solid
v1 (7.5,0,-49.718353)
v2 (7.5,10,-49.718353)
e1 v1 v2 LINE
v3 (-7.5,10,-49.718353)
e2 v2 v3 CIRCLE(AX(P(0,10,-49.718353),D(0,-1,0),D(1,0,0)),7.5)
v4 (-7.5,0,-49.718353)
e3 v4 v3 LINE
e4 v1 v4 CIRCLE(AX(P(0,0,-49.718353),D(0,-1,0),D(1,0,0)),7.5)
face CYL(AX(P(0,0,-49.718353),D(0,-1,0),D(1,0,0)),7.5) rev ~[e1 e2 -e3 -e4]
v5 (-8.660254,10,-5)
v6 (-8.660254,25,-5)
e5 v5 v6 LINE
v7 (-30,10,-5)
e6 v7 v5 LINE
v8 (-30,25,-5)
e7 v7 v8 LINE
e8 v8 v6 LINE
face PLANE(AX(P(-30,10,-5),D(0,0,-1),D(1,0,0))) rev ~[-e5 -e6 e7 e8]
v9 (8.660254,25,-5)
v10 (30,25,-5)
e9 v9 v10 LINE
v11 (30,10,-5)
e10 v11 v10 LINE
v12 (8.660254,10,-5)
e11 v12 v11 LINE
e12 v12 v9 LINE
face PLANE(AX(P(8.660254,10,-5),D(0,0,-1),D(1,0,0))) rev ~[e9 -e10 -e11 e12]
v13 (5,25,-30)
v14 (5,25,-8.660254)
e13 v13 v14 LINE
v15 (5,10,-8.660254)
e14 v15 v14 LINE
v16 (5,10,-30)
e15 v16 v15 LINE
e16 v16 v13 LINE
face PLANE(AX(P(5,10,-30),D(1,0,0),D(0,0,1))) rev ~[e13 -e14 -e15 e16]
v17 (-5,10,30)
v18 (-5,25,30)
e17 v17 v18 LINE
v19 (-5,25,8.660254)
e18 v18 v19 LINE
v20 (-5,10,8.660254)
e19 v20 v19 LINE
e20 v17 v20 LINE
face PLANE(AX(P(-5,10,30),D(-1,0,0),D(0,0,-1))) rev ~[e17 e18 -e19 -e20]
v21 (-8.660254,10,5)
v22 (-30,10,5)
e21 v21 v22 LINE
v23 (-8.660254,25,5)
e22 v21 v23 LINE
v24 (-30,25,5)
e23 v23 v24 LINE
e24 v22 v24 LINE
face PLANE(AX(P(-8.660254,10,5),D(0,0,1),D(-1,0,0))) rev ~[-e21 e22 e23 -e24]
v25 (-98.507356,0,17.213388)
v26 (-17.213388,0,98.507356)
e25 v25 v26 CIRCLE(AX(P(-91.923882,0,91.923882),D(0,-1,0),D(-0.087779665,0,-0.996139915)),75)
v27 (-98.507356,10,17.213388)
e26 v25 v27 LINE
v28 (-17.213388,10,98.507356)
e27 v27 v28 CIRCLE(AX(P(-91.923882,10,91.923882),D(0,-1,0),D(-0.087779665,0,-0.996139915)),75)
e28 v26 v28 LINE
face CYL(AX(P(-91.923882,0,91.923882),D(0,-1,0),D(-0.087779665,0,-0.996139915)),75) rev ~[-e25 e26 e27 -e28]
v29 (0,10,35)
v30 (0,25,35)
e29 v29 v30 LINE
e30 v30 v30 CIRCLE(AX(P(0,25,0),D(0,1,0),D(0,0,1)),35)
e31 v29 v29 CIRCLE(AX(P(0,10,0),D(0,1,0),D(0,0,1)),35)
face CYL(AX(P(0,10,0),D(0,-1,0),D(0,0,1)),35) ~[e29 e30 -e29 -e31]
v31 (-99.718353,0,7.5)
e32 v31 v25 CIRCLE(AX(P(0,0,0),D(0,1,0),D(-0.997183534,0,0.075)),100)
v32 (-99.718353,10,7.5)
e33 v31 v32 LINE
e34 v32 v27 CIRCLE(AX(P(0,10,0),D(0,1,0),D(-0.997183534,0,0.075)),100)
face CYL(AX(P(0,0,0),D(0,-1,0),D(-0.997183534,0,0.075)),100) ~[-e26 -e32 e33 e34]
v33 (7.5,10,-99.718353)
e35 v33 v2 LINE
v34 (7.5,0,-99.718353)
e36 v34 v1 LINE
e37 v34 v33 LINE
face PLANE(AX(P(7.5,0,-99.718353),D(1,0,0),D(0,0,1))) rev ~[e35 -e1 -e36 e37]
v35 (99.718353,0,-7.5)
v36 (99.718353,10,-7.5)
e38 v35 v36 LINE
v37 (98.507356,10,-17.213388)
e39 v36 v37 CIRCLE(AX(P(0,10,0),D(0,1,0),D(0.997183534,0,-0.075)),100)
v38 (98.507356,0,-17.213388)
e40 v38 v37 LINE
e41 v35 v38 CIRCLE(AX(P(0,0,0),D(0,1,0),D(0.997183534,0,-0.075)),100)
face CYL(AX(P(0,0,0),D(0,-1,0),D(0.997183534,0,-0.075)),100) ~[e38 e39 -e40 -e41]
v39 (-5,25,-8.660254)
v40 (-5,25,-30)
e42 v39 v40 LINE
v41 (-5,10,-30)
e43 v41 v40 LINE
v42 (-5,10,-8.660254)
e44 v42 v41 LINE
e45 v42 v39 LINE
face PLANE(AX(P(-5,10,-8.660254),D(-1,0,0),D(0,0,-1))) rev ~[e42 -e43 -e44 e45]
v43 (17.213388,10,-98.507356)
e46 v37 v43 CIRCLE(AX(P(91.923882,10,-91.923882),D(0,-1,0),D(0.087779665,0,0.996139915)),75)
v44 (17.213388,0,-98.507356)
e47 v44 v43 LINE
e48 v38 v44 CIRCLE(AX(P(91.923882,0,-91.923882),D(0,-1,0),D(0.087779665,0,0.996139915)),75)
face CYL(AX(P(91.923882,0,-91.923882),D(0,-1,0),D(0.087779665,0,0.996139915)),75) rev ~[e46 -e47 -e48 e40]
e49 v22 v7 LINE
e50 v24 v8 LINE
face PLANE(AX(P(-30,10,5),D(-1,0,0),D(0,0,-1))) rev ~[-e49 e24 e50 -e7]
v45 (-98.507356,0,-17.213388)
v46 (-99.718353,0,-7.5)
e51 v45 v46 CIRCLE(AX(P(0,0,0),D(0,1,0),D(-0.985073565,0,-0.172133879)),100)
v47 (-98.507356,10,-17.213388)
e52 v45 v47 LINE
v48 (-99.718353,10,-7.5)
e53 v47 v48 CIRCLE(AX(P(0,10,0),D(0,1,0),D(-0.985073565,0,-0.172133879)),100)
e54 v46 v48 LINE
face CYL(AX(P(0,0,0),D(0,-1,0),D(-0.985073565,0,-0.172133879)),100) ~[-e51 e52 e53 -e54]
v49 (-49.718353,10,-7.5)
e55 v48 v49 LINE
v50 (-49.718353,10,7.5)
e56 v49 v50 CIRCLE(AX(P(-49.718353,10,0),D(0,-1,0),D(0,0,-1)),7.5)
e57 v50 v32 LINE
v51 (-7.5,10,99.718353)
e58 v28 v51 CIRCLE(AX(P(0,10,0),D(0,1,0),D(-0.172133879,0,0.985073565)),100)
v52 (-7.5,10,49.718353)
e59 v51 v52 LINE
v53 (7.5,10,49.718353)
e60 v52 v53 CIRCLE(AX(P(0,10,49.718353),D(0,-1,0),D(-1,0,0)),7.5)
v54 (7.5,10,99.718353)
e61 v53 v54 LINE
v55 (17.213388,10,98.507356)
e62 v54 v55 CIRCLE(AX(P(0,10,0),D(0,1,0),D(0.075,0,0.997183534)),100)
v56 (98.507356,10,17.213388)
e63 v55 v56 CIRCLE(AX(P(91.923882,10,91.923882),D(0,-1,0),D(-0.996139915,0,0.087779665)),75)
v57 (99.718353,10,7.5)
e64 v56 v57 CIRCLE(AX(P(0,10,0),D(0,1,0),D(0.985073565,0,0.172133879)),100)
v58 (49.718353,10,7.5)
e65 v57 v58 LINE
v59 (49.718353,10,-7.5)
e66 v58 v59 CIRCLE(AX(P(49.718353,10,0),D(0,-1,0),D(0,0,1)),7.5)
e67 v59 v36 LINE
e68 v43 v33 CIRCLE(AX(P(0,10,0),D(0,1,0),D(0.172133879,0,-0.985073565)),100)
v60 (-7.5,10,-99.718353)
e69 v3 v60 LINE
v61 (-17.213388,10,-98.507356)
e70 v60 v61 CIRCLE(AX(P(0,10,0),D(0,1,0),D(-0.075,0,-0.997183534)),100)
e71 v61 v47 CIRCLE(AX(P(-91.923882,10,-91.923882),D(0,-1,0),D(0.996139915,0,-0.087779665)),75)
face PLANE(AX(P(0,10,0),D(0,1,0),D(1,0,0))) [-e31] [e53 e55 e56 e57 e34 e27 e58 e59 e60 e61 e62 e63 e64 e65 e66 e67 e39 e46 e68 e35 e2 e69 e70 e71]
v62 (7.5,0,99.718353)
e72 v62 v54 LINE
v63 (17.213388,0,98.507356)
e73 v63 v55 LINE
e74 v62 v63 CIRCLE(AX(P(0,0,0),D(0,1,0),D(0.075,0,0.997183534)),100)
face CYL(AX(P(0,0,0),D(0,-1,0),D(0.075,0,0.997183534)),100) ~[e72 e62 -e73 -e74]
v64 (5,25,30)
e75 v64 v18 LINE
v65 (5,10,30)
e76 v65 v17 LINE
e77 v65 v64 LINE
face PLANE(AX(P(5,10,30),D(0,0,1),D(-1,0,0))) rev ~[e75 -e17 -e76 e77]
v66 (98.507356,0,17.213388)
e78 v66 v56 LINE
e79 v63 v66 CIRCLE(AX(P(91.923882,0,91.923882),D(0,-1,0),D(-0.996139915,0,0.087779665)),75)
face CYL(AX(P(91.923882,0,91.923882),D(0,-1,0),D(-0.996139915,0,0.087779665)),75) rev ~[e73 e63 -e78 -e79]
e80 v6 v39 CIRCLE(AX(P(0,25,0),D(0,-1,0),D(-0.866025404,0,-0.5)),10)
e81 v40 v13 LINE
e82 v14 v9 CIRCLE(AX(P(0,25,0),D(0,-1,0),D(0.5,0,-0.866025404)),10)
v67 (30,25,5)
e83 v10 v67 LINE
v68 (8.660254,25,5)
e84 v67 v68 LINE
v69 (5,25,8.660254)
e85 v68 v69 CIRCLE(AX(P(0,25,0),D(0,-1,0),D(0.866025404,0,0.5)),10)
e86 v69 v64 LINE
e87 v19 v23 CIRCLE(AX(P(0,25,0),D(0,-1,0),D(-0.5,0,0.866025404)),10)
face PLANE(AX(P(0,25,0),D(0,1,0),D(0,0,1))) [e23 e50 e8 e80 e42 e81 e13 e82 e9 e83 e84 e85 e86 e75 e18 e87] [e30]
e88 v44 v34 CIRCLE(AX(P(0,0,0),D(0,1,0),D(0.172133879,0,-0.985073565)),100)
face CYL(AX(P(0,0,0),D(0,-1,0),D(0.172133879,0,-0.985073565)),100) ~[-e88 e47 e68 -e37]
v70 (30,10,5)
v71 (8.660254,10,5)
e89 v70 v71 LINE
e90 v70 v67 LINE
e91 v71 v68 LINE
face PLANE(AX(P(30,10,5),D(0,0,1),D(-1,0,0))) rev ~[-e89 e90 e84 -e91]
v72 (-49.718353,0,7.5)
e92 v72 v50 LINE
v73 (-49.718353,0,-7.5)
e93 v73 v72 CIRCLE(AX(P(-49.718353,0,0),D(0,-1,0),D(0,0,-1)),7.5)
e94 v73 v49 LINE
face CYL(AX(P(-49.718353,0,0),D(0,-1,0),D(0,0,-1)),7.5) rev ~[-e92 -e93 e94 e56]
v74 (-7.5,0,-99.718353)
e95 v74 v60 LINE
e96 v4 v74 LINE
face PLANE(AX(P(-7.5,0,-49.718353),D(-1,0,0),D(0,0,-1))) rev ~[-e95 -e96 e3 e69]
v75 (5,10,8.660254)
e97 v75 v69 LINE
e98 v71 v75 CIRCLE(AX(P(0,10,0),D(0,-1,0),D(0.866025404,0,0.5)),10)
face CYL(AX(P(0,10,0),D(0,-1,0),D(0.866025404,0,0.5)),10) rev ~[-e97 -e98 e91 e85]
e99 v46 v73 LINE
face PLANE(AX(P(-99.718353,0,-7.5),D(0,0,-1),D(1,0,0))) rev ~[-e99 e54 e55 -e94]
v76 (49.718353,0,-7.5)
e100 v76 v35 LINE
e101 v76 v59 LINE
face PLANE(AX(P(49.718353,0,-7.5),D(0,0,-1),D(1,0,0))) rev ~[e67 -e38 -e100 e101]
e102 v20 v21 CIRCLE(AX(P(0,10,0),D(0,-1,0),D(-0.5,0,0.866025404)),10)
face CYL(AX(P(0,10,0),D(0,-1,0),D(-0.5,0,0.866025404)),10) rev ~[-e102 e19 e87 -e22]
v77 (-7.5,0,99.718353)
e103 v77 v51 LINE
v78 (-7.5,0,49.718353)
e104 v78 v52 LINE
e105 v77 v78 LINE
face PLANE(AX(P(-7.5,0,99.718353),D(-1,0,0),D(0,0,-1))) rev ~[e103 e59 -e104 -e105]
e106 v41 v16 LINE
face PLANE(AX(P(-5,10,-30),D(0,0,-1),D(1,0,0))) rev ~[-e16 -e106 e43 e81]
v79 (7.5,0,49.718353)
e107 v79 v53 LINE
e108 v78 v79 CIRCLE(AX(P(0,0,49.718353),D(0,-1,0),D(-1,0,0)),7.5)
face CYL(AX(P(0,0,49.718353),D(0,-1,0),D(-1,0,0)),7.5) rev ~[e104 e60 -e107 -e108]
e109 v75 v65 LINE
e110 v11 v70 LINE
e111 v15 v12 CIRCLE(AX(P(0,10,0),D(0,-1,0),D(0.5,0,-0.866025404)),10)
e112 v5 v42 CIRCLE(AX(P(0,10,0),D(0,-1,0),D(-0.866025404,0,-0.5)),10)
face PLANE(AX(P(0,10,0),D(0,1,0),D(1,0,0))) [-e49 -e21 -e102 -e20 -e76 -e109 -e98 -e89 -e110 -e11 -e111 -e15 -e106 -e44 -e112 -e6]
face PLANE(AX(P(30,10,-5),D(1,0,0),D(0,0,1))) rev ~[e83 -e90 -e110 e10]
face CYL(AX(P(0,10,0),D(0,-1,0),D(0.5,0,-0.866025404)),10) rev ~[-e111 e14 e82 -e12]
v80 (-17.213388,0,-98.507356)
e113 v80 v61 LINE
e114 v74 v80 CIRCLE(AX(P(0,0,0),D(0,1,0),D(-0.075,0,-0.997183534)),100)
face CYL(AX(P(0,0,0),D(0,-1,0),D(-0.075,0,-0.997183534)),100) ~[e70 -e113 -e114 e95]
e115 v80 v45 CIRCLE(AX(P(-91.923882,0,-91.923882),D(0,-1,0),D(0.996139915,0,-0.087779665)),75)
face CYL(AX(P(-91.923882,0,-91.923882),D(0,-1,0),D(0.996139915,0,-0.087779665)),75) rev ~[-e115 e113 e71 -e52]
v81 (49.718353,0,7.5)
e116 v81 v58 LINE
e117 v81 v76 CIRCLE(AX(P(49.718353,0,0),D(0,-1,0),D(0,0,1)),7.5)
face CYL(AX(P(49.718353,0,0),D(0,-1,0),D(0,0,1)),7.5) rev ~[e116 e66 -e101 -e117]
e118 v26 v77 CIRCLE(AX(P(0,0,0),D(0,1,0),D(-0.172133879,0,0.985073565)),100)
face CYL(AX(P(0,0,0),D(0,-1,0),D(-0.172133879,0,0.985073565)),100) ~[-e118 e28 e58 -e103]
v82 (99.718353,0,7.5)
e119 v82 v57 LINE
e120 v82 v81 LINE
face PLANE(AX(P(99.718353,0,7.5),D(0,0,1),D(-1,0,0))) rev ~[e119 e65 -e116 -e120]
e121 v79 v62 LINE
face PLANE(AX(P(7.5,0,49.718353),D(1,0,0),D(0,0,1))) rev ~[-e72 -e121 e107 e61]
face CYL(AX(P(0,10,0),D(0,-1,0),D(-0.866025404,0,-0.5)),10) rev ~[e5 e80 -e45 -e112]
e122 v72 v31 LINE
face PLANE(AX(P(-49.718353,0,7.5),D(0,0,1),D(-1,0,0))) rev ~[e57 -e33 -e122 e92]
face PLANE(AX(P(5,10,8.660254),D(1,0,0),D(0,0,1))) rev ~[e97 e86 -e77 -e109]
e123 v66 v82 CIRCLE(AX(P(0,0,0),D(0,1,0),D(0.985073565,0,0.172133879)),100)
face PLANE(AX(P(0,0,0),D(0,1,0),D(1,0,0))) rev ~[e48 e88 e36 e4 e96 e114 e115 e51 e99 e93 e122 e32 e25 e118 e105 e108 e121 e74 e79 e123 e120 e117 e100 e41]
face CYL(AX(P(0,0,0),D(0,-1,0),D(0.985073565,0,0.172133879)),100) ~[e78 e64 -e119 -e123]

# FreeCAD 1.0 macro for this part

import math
import FreeCAD as App
import Part
import Sketcher
from FreeCAD import Vector

doc = App.newDocument("Part")
body = doc.addObject("PartDesign::Body", "Body")

# Sketch on XZ plane
sketch1 = body.newObject("Sketcher::SketchObject", "Sketch")
sketch1.AttachmentSupport = (doc.getObject("XZ_Plane"), [""])
sketch1.MapMode = "FlatFace"
sketch1.addGeometry([
    Part.LineSegment(Vector(-8, -50, 0), Vector(-8, -100, 0)),  # 0
    Part.ArcOfCircle(Part.Circle(Vector(0, 0, 0), Vector(0, 0, 1), 100), math.radians(-99.91), math.radians(-94.3)),  # 1
    Part.ArcOfCircle(Part.Circle(Vector(-92, -92, 0), Vector(0, 0, 1), 75), math.radians(-5), math.radians(95)),  # 2
    Part.ArcOfCircle(Part.Circle(Vector(0, 0, 0), Vector(0, 0, 1), 100), math.radians(-175.7), math.radians(-170.09)),  # 3
    Part.LineSegment(Vector(-100, -8, 0), Vector(-50, -8, 0)),  # 4
    Part.ArcOfCircle(Part.Circle(Vector(-50, 0, 0), Vector(0, 0, 1), 8), math.radians(-90), math.radians(90)),  # 5
    Part.LineSegment(Vector(-50, 8, 0), Vector(-100, 8, 0)),  # 6
    Part.ArcOfCircle(Part.Circle(Vector(0, 0, 0), Vector(0, 0, 1), 100), math.radians(170.09), math.radians(175.7)),  # 7
    Part.ArcOfCircle(Part.Circle(Vector(-92, 92, 0), Vector(0, 0, 1), 75), math.radians(-95), math.radians(5)),  # 8
    Part.ArcOfCircle(Part.Circle(Vector(0, 0, 0), Vector(0, 0, 1), 100), math.radians(94.3), math.radians(99.91)),  # 9
    Part.LineSegment(Vector(-8, 100, 0), Vector(-8, 50, 0)),  # 10
    Part.ArcOfCircle(Part.Circle(Vector(0, 50, 0), Vector(0, 0, 1), 8), math.radians(180), math.radians(360)),  # 11
    Part.LineSegment(Vector(8, 50, 0), Vector(8, 100, 0)),  # 12
    Part.ArcOfCircle(Part.Circle(Vector(0, 0, 0), Vector(0, 0, 1), 100), math.radians(80.09), math.radians(85.7)),  # 13
    Part.ArcOfCircle(Part.Circle(Vector(92, 92, 0), Vector(0, 0, 1), 75), math.radians(175), math.radians(275)),  # 14
    Part.ArcOfCircle(Part.Circle(Vector(0, 0, 0), Vector(0, 0, 1), 100), math.radians(4.3), math.radians(9.91)),  # 15
    Part.LineSegment(Vector(100, 8, 0), Vector(50, 8, 0)),  # 16
    Part.ArcOfCircle(Part.Circle(Vector(50, 0, 0), Vector(0, 0, 1), 8), math.radians(90), math.radians(270)),  # 17
    Part.LineSegment(Vector(50, -8, 0), Vector(100, -8, 0)),  # 18
    Part.ArcOfCircle(Part.Circle(Vector(0, 0, 0), Vector(0, 0, 1), 100), math.radians(-9.91), math.radians(-4.3)),  # 19
    Part.ArcOfCircle(Part.Circle(Vector(92, -92, 0), Vector(0, 0, 1), 75), math.radians(85), math.radians(185)),  # 20
    Part.ArcOfCircle(Part.Circle(Vector(0, 0, 0), Vector(0, 0, 1), 100), math.radians(-85.7), math.radians(-80.09)),  # 21
    Part.LineSegment(Vector(8, -100, 0), Vector(8, -50, 0)),  # 22
    Part.ArcOfCircle(Part.Circle(Vector(0, -50, 0), Vector(0, 0, 1), 8), math.radians(0), math.radians(180)),  # 23
], False)
sketch1.addConstraint([
    Sketcher.Constraint("Coincident", 0, 2, 1, 2),
    Sketcher.Constraint("Coincident", 1, 1, 2, 1),
    Sketcher.Constraint("Coincident", 2, 2, 3, 2),
    Sketcher.Constraint("Coincident", 3, 1, 4, 1),
    Sketcher.Constraint("Tangent", 4, 2, 5, 1),
    Sketcher.Constraint("Tangent", 5, 2, 6, 1),
    Sketcher.Constraint("Coincident", 6, 2, 7, 2),
    Sketcher.Constraint("Coincident", 7, 1, 8, 1),
    Sketcher.Constraint("Coincident", 8, 2, 9, 2),
    Sketcher.Constraint("Coincident", 9, 1, 10, 1),
    Sketcher.Constraint("Tangent", 10, 2, 11, 1),
    Sketcher.Constraint("Tangent", 11, 2, 12, 1),
    Sketcher.Constraint("Coincident", 12, 2, 13, 2),
    Sketcher.Constraint("Coincident", 13, 1, 14, 1),
    Sketcher.Constraint("Coincident", 14, 2, 15, 2),
    Sketcher.Constraint("Coincident", 15, 1, 16, 1),
    Sketcher.Constraint("Tangent", 16, 2, 17, 1),
    Sketcher.Constraint("Tangent", 17, 2, 18, 1),
    Sketcher.Constraint("Coincident", 18, 2, 19, 2),
    Sketcher.Constraint("Coincident", 19, 1, 20, 1),
    Sketcher.Constraint("Coincident", 20, 2, 21, 2),
    Sketcher.Constraint("Coincident", 21, 1, 22, 1),
    Sketcher.Constraint("Tangent", 22, 2, 23, 1),
    Sketcher.Constraint("Tangent", 23, 2, 0, 1),
    Sketcher.Constraint("Vertical", 0),
    Sketcher.Constraint("Horizontal", 4),
    Sketcher.Constraint("Horizontal", 6),
    Sketcher.Constraint("Vertical", 10),
    Sketcher.Constraint("Vertical", 12),
    Sketcher.Constraint("Horizontal", 16),
    Sketcher.Constraint("Horizontal", 18),
    Sketcher.Constraint("Vertical", 22),
    Sketcher.Constraint("Coincident", 1, 3, -1, 1),
    Sketcher.Constraint("Coincident", 3, 3, -1, 1),
    Sketcher.Constraint("Coincident", 7, 3, -1, 1),
    Sketcher.Constraint("Coincident", 9, 3, -1, 1),
    Sketcher.Constraint("Coincident", 13, 3, -1, 1),
    Sketcher.Constraint("Coincident", 15, 3, -1, 1),
    Sketcher.Constraint("Coincident", 19, 3, -1, 1),
    Sketcher.Constraint("Coincident", 21, 3, -1, 1),
    Sketcher.Constraint("Equal", 1, 3),
    Sketcher.Constraint("Equal", 3, 7),
    Sketcher.Constraint("Equal", 2, 8),
    Sketcher.Constraint("Equal", 7, 9),
    Sketcher.Constraint("Equal", 5, 11),
    Sketcher.Constraint("Equal", 9, 13),
    Sketcher.Constraint("Equal", 8, 14),
    Sketcher.Constraint("Equal", 13, 15),
    Sketcher.Constraint("Equal", 11, 17),
    Sketcher.Constraint("Equal", 15, 19),
    Sketcher.Constraint("Equal", 14, 20),
    Sketcher.Constraint("Equal", 19, 21),
    Sketcher.Constraint("Equal", 17, 23),
    Sketcher.Constraint("Symmetric", 2, 3, 14, 3, -1, 1),
    Sketcher.Constraint("Symmetric", 5, 3, 17, 3, -1, 1),
    Sketcher.Constraint("Symmetric", 8, 3, 20, 3, -1, 1),
    Sketcher.Constraint("Symmetric", 11, 3, 23, 3, -1, 1),
    Sketcher.Constraint("Symmetric", 8, 3, 14, 3, -2),
    Sketcher.Constraint("PointOnObject", 5, 3, -1),
    Sketcher.Constraint("PointOnObject", 11, 3, -2),
    Sketcher.Constraint("Equal", 18, 0),
    Sketcher.Constraint("Radius", 1, 100.0),
    Sketcher.Constraint("Radius", 2, 75.0),
    Sketcher.Constraint("Radius", 5, 7.5),
    Sketcher.Constraint("DistanceX", 4, 1, 4, 2, 50.0),
    Sketcher.Constraint("DistanceX", 2, 3, -1, 1, 91.923882),
    Sketcher.Constraint("DistanceY", 2, 3, -1, 1, 91.923882),
])
pad1 = body.newObject("PartDesign::Pad", "Pad")
pad1.Profile = sketch1
pad1.Length = 10
pad1.Reversed = True

# Sketch on XZ plane
sketch2 = body.newObject("Sketcher::SketchObject", "Sketch001")
sketch2.AttachmentSupport = (doc.getObject("XZ_Plane"), [""])
sketch2.MapMode = "FlatFace"
sketch2.AttachmentOffset = App.Placement(Vector(0, 0, -10), App.Rotation())
sketch2.addGeometry([
    Part.Circle(Vector(0, 0, 0), Vector(0, 0, 1), 35),  # 0
    Part.ArcOfCircle(Part.Circle(Vector(0, 0, 0), Vector(0, 0, 1), 10), math.radians(-150), math.radians(-120)),  # 1
    Part.LineSegment(Vector(-5, -9, 0), Vector(-5, -30, 0)),  # 2
    Part.LineSegment(Vector(-5, -30, 0), Vector(5, -30, 0)),  # 3
    Part.LineSegment(Vector(5, -30, 0), Vector(5, -9, 0)),  # 4
    Part.ArcOfCircle(Part.Circle(Vector(0, 0, 0), Vector(0, 0, 1), 10), math.radians(-60), math.radians(-30)),  # 5
    Part.LineSegment(Vector(9, -5, 0), Vector(30, -5, 0)),  # 6
    Part.LineSegment(Vector(30, -5, 0), Vector(30, 5, 0)),  # 7
    Part.LineSegment(Vector(30, 5, 0), Vector(9, 5, 0)),  # 8
    Part.ArcOfCircle(Part.Circle(Vector(0, 0, 0), Vector(0, 0, 1), 10), math.radians(30), math.radians(60)),  # 9
    Part.LineSegment(Vector(5, 9, 0), Vector(5, 30, 0)),  # 10
    Part.LineSegment(Vector(5, 30, 0), Vector(-5, 30, 0)),  # 11
    Part.LineSegment(Vector(-5, 30, 0), Vector(-5, 9, 0)),  # 12
    Part.ArcOfCircle(Part.Circle(Vector(0, 0, 0), Vector(0, 0, 1), 10), math.radians(120), math.radians(150)),  # 13
    Part.LineSegment(Vector(-9, 5, 0), Vector(-30, 5, 0)),  # 14
    Part.LineSegment(Vector(-30, 5, 0), Vector(-30, -5, 0)),  # 15
    Part.LineSegment(Vector(-30, -5, 0), Vector(-9, -5, 0)),  # 16
], False)
sketch2.addConstraint([
    Sketcher.Constraint("Coincident", 1, 2, 2, 1),
    Sketcher.Constraint("Coincident", 2, 2, 3, 1),
    Sketcher.Constraint("Coincident", 3, 2, 4, 1),
    Sketcher.Constraint("Coincident", 4, 2, 5, 1),
    Sketcher.Constraint("Coincident", 5, 2, 6, 1),
    Sketcher.Constraint("Coincident", 6, 2, 7, 1),
    Sketcher.Constraint("Coincident", 7, 2, 8, 1),
    Sketcher.Constraint("Coincident", 8, 2, 9, 1),
    Sketcher.Constraint("Coincident", 9, 2, 10, 1),
    Sketcher.Constraint("Coincident", 10, 2, 11, 1),
    Sketcher.Constraint("Coincident", 11, 2, 12, 1),
    Sketcher.Constraint("Coincident", 12, 2, 13, 1),
    Sketcher.Constraint("Coincident", 13, 2, 14, 1),
    Sketcher.Constraint("Coincident", 14, 2, 15, 1),
    Sketcher.Constraint("Coincident", 15, 2, 16, 1),
    Sketcher.Constraint("Coincident", 16, 2, 1, 1),
    Sketcher.Constraint("Vertical", 2),
    Sketcher.Constraint("Horizontal", 3),
    Sketcher.Constraint("Vertical", 4),
    Sketcher.Constraint("Horizontal", 6),
    Sketcher.Constraint("Vertical", 7),
    Sketcher.Constraint("Horizontal", 8),
    Sketcher.Constraint("Vertical", 10),
    Sketcher.Constraint("Horizontal", 11),
    Sketcher.Constraint("Vertical", 12),
    Sketcher.Constraint("Horizontal", 14),
    Sketcher.Constraint("Vertical", 15),
    Sketcher.Constraint("Horizontal", 16),
    Sketcher.Constraint("Coincident", 0, 3, -1, 1),
    Sketcher.Constraint("Coincident", 1, 3, -1, 1),
    Sketcher.Constraint("Coincident", 5, 3, -1, 1),
    Sketcher.Constraint("Coincident", 9, 3, -1, 1),
    Sketcher.Constraint("Coincident", 13, 3, -1, 1),
    Sketcher.Constraint("Equal", 1, 5),
    Sketcher.Constraint("Equal", 5, 9),
    Sketcher.Constraint("Equal", 9, 13),
    Sketcher.Constraint("Symmetric", 2, 2, 10, 2, -1, 1),
    Sketcher.Constraint("Symmetric", 6, 2, 14, 2, -1, 1),
    Sketcher.Constraint("Horizontal", 1, 2, 4, 2),
    Sketcher.Constraint("Horizontal", 9, 2, 12, 2),
    Sketcher.Constraint("Horizontal", 8, 2, 13, 2),
    Sketcher.Constraint("Horizontal", 6, 2, 15, 2),
    Sketcher.Constraint("Equal", 16, 2),
    Sketcher.Constraint("Equal", 11, 7),
    Sketcher.Constraint("Diameter", 0, 70.0),
    Sketcher.Constraint("Radius", 1, 10.0),
    Sketcher.Constraint("DistanceX", 3, 1, 3, 2, 10.0),
    Sketcher.Constraint("DistanceY", 2, 2, -1, 1, 30.0),
])
pad2 = body.newObject("PartDesign::Pad", "Pad001")
pad2.Profile = sketch2
pad2.Length = 15
pad2.Reversed = True

doc.recompute()
